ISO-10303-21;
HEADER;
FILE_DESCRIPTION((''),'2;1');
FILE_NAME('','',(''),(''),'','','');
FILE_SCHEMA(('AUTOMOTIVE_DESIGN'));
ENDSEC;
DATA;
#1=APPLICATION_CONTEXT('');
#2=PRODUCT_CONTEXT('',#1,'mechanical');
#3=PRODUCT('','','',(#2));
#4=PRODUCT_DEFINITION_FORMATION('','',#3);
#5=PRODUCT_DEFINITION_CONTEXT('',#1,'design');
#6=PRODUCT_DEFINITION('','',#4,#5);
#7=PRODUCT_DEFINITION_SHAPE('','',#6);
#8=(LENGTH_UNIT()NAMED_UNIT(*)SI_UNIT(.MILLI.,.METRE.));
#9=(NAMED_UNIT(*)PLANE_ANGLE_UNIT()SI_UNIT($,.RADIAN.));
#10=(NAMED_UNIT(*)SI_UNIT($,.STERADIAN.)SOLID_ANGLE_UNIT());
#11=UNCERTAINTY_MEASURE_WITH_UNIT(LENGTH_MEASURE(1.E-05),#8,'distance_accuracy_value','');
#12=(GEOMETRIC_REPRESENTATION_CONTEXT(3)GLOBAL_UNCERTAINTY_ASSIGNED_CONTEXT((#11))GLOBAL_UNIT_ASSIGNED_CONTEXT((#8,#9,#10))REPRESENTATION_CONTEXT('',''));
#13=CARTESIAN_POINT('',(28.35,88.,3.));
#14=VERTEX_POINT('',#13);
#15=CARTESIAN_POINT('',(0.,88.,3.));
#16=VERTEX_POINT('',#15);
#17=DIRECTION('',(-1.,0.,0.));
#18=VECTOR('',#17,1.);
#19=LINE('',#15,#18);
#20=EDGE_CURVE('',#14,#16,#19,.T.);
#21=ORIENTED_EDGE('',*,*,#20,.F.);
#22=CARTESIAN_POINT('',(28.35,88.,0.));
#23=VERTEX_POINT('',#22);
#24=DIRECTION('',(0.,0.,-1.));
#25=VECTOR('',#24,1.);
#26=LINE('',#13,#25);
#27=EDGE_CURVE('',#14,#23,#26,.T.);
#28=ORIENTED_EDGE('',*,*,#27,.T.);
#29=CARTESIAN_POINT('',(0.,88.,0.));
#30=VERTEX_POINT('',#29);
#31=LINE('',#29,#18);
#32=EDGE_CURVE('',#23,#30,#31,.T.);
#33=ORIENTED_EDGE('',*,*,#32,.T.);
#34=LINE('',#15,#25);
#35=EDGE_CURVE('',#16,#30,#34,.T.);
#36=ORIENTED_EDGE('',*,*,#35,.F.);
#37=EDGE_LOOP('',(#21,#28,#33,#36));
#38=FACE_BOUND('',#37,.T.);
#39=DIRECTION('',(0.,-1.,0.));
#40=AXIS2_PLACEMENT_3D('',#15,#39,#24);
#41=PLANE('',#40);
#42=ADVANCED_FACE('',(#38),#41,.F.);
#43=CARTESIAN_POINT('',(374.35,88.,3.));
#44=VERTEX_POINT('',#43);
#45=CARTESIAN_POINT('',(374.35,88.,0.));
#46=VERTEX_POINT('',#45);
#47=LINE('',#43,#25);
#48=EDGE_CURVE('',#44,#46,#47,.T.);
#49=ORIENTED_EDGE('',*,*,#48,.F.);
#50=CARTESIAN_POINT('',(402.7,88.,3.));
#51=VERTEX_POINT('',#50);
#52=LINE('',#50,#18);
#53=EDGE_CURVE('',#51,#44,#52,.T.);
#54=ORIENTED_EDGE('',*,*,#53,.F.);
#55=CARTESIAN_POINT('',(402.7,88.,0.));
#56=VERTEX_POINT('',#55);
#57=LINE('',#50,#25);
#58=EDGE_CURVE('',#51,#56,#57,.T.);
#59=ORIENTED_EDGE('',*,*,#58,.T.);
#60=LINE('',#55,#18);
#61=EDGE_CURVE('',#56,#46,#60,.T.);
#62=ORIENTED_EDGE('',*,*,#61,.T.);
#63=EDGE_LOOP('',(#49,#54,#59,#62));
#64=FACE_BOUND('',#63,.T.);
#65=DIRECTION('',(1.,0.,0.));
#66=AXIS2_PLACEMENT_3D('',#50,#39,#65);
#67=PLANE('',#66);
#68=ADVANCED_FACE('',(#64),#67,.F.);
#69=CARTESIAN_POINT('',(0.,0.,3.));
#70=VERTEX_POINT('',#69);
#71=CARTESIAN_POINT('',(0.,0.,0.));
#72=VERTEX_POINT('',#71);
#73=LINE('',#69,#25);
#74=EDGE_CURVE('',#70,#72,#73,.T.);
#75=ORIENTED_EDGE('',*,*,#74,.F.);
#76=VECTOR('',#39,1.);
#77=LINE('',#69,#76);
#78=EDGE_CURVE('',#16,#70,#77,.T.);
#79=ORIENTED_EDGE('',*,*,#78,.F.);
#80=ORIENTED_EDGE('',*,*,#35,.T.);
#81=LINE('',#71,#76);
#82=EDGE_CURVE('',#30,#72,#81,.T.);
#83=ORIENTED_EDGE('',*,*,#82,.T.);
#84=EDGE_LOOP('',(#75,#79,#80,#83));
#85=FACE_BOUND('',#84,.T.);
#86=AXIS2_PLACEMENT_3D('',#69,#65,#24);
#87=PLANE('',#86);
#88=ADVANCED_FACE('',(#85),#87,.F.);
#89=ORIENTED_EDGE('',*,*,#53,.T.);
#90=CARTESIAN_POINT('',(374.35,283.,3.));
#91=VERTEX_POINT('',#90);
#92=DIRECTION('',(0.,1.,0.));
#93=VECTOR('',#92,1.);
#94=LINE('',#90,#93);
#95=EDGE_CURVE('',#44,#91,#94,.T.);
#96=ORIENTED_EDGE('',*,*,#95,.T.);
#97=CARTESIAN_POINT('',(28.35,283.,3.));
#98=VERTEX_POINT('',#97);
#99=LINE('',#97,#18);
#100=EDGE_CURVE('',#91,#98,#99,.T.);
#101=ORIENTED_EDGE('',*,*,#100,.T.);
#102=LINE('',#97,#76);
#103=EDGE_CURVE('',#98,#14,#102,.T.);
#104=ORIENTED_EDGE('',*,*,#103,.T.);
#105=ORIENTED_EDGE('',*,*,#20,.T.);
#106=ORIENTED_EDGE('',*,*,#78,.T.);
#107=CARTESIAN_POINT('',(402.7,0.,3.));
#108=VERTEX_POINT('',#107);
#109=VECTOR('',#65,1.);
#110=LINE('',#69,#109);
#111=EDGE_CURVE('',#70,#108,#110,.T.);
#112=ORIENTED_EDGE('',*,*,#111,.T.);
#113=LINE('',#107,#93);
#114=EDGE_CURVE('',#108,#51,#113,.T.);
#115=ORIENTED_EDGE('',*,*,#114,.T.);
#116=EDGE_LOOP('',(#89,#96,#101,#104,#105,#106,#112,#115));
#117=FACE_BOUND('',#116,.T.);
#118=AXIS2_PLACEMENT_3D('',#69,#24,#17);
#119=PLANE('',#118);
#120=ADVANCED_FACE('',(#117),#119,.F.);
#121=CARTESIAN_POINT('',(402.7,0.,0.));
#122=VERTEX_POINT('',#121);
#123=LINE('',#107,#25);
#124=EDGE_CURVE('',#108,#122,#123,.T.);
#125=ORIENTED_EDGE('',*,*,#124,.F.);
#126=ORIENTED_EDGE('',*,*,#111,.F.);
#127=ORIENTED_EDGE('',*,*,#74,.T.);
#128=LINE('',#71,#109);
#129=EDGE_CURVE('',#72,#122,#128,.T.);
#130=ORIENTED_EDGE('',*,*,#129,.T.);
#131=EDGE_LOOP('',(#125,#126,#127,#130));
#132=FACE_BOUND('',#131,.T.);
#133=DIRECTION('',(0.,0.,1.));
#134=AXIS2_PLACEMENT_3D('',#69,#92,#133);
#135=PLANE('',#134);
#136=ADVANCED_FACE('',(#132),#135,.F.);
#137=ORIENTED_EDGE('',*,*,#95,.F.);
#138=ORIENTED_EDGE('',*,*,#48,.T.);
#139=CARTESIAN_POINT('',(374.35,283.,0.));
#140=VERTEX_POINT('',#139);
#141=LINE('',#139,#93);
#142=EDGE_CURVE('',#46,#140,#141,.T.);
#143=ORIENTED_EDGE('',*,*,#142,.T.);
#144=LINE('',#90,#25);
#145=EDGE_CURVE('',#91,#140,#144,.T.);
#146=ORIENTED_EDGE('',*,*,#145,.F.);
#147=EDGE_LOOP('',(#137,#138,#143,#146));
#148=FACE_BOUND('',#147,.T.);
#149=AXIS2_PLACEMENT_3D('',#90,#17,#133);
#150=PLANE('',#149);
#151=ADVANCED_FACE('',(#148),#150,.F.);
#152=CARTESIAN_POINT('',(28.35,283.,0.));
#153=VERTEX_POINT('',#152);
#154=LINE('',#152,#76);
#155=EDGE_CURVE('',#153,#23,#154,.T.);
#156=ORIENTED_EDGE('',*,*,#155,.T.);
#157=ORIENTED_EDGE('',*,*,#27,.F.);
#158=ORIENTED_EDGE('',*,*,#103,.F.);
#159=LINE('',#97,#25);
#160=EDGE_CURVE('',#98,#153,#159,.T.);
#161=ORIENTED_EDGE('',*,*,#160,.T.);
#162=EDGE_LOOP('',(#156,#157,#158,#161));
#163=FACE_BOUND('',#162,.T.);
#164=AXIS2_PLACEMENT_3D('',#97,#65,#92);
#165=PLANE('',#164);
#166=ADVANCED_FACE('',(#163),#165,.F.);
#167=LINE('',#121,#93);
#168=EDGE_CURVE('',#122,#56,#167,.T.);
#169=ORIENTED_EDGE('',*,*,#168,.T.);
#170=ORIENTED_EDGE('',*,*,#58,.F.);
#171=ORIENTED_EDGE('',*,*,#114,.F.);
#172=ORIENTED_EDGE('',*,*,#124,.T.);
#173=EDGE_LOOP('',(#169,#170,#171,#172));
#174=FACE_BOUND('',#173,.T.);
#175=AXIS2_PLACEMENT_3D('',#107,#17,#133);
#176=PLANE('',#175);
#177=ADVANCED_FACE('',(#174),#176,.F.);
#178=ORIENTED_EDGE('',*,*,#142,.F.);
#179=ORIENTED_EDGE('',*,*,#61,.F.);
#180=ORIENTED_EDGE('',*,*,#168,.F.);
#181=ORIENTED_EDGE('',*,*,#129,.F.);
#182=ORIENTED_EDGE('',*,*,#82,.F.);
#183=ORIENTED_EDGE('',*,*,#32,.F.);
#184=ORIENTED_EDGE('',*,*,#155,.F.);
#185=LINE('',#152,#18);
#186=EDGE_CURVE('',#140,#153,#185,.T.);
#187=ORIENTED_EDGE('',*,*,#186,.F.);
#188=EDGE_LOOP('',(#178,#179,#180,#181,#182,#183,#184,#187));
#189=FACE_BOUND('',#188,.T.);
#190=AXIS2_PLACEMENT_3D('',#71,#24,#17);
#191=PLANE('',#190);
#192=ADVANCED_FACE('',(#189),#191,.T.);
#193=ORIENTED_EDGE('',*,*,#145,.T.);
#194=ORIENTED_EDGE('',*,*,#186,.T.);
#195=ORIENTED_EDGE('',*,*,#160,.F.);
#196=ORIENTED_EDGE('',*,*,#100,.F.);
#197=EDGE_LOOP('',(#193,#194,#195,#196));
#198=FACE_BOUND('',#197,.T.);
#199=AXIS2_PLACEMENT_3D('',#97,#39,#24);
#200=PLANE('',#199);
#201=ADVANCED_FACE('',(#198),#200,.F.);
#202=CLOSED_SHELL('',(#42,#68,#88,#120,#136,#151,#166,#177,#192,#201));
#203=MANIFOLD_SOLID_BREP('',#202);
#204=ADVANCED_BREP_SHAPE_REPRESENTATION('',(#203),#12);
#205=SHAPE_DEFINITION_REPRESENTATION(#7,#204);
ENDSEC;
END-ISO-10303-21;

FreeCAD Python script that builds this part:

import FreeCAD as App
import Part
import Sketcher
from FreeCAD import Vector
Q = App.Units.Quantity

doc = App.newDocument("Part")
body = doc.addObject("PartDesign::Body", "Body")

# Sketch on XY plane
sketch1 = doc.addObject("Sketcher::SketchObject", "Sketch")
body.addObject(sketch1)
sketch1.AttachmentSupport = (doc.XY_Plane, [""])
sketch1.MapMode = "FlatFace"
sketch1.addGeometry([
    Part.LineSegment(Vector(0, 0, 0), Vector(403, 0, 0)),  # 0
    Part.LineSegment(Vector(403, 0, 0), Vector(403, 88, 0)),  # 1
    Part.LineSegment(Vector(403, 88, 0), Vector(374, 88, 0)),  # 2
    Part.LineSegment(Vector(374, 88, 0), Vector(374, 283, 0)),  # 3
    Part.LineSegment(Vector(374, 283, 0), Vector(28, 283, 0)),  # 4
    Part.LineSegment(Vector(28, 283, 0), Vector(28, 88, 0)),  # 5
    Part.LineSegment(Vector(28, 88, 0), Vector(0, 88, 0)),  # 6
    Part.LineSegment(Vector(0, 88, 0), Vector(0, 0, 0)),  # 7
], False)
sketch1.addConstraint([
    Sketcher.Constraint("Coincident", 0, 2, 1, 1),
    Sketcher.Constraint("Coincident", 1, 2, 2, 1),
    Sketcher.Constraint("Coincident", 2, 2, 3, 1),
    Sketcher.Constraint("Coincident", 3, 2, 4, 1),
    Sketcher.Constraint("Coincident", 4, 2, 5, 1),
    Sketcher.Constraint("Coincident", 5, 2, 6, 1),
    Sketcher.Constraint("Coincident", 6, 2, 7, 1),
    Sketcher.Constraint("Coincident", 7, 2, 0, 1),
    Sketcher.Constraint("Horizontal", 0),
    Sketcher.Constraint("Vertical", 1),
    Sketcher.Constraint("Horizontal", 2),
    Sketcher.Constraint("Vertical", 3),
    Sketcher.Constraint("Horizontal", 4),
    Sketcher.Constraint("Vertical", 5),
    Sketcher.Constraint("Horizontal", 6),
    Sketcher.Constraint("Vertical", 7),
    Sketcher.Constraint("Coincident", 7, 2, -1, 1),
    Sketcher.Constraint("Horizontal", 2, 2, 5, 2),
    Sketcher.Constraint("Equal", 2, 6),
    Sketcher.Constraint("DistanceX", 4, 2, 4, 1, Q("346 mm")),
    Sketcher.Constraint("DistanceY", 1, 1, 1, 2, Q("88 mm")),
    Sketcher.Constraint("DistanceY", 3, 1, 3, 2, Q("195 mm")),
    Sketcher.Constraint("DistanceX", 0, 1, 0, 2, Q("402.7 mm")),
])
pad1 = doc.addObject("PartDesign::Pad", "Pad")
body.addObject(pad1)
pad1.Profile = sketch1
pad1.Length = 3

doc.recompute()
